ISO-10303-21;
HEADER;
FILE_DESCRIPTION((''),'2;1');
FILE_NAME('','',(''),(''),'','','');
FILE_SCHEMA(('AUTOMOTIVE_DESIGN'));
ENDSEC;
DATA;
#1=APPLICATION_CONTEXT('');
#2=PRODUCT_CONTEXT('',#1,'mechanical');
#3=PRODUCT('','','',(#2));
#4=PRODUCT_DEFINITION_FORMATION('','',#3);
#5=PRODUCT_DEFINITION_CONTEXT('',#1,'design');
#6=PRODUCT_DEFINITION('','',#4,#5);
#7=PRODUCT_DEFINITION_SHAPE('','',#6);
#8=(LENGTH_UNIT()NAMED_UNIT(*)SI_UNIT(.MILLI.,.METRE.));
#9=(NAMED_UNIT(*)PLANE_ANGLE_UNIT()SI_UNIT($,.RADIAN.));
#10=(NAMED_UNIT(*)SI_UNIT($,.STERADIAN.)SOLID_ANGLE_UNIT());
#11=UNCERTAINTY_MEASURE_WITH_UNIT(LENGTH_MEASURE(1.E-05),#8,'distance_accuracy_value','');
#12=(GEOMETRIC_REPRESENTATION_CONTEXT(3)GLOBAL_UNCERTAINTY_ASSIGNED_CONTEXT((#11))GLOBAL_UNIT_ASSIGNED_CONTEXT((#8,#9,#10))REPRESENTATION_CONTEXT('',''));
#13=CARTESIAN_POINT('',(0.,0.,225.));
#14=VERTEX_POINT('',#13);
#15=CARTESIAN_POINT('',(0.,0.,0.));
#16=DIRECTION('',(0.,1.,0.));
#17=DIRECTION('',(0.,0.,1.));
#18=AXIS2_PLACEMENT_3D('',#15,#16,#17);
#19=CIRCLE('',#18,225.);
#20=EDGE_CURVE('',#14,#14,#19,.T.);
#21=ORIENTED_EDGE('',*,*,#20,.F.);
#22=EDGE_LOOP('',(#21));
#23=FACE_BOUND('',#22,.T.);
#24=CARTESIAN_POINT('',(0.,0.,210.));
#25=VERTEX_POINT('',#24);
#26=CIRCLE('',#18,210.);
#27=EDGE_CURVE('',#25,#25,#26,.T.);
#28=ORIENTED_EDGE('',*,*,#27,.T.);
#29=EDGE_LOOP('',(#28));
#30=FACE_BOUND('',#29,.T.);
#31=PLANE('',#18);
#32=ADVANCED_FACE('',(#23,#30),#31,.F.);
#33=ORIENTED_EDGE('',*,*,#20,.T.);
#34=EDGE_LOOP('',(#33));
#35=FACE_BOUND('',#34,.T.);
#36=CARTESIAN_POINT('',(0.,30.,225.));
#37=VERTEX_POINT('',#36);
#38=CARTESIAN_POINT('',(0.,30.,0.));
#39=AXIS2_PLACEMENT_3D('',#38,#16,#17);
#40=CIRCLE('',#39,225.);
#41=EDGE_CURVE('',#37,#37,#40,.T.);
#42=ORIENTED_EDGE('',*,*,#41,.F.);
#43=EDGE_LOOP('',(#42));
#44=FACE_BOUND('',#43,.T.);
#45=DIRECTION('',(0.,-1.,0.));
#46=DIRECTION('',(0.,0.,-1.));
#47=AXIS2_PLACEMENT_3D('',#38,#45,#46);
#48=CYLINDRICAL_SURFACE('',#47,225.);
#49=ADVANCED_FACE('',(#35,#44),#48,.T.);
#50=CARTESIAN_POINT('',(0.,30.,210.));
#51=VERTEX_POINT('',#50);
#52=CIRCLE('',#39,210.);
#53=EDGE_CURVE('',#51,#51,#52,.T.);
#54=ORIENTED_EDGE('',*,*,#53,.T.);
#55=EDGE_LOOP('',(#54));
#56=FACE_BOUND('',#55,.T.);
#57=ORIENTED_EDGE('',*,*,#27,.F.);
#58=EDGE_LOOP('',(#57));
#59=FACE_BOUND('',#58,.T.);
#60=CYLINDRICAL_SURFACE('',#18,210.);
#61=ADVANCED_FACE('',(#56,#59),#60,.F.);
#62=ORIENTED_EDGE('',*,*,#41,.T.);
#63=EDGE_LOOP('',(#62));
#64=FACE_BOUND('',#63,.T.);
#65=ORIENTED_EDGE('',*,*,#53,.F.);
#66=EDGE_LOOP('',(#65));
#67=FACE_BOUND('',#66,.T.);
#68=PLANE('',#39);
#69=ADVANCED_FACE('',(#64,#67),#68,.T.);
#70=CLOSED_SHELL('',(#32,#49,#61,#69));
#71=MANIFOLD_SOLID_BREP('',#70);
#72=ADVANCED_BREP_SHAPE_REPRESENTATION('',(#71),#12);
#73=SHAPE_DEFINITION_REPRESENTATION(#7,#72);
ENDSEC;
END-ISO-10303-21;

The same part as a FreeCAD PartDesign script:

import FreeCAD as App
import Part
import Sketcher
from FreeCAD import Vector

doc = App.newDocument("Part")
params = doc.addObject("Spreadsheet::Sheet", "Params")
for row, (alias, value) in enumerate([
    ("sketch1_diameter", "450 mm"),
    ("pad1_length", "30 mm"),
    ("sketch2_diameter", "420 mm"),
], start=1):
    params.set(f"A{row}", alias)
    params.set(f"B{row}", "=" + value)
    params.setAlias(f"B{row}", alias)

body = doc.addObject("PartDesign::Body", "Body")

# Sketch on XZ plane
sketch1 = body.newObject("Sketcher::SketchObject", "Sketch")
sketch1.AttachmentSupport = (doc.getObject("XZ_Plane"), [""])
sketch1.MapMode = "FlatFace"
sketch1.addGeometry(Part.Circle(Vector(0, 0, 0), Vector(0, 0, 1), 225), False)
sketch1.addConstraint(Sketcher.Constraint("Coincident", 0, 3, -1, 1))
sketch1.addConstraint(Sketcher.Constraint("Diameter", 0, 450.0))
sketch1.setExpression("Constraints[1]", "Params.sketch1_diameter")
pad1 = body.newObject("PartDesign::Pad", "Pad")
pad1.Profile = sketch1
pad1.setExpression("Length", "Params.pad1_length")
pad1.Reversed = True

# Sketch on XZ plane
sketch2 = body.newObject("Sketcher::SketchObject", "Sketch001")
sketch2.AttachmentSupport = (doc.getObject("XZ_Plane"), [""])
sketch2.MapMode = "FlatFace"
sketch2.AttachmentOffset = App.Placement(Vector(0, 0, -30), App.Rotation())
sketch2.addGeometry(Part.Circle(Vector(0, 0, 0), Vector(0, 0, 1), 210), False)
sketch2.addConstraint(Sketcher.Constraint("Coincident", 0, 3, -1, 1))
sketch2.addConstraint(Sketcher.Constraint("Diameter", 0, 420.0))
sketch2.setExpression("Constraints[1]", "Params.sketch2_diameter")
pocket1 = body.newObject("PartDesign::Pocket", "Pocket")
pocket1.Profile = sketch2
pocket1.Type = "ThroughAll"
pocket1.Midplane = True

doc.recompute()
